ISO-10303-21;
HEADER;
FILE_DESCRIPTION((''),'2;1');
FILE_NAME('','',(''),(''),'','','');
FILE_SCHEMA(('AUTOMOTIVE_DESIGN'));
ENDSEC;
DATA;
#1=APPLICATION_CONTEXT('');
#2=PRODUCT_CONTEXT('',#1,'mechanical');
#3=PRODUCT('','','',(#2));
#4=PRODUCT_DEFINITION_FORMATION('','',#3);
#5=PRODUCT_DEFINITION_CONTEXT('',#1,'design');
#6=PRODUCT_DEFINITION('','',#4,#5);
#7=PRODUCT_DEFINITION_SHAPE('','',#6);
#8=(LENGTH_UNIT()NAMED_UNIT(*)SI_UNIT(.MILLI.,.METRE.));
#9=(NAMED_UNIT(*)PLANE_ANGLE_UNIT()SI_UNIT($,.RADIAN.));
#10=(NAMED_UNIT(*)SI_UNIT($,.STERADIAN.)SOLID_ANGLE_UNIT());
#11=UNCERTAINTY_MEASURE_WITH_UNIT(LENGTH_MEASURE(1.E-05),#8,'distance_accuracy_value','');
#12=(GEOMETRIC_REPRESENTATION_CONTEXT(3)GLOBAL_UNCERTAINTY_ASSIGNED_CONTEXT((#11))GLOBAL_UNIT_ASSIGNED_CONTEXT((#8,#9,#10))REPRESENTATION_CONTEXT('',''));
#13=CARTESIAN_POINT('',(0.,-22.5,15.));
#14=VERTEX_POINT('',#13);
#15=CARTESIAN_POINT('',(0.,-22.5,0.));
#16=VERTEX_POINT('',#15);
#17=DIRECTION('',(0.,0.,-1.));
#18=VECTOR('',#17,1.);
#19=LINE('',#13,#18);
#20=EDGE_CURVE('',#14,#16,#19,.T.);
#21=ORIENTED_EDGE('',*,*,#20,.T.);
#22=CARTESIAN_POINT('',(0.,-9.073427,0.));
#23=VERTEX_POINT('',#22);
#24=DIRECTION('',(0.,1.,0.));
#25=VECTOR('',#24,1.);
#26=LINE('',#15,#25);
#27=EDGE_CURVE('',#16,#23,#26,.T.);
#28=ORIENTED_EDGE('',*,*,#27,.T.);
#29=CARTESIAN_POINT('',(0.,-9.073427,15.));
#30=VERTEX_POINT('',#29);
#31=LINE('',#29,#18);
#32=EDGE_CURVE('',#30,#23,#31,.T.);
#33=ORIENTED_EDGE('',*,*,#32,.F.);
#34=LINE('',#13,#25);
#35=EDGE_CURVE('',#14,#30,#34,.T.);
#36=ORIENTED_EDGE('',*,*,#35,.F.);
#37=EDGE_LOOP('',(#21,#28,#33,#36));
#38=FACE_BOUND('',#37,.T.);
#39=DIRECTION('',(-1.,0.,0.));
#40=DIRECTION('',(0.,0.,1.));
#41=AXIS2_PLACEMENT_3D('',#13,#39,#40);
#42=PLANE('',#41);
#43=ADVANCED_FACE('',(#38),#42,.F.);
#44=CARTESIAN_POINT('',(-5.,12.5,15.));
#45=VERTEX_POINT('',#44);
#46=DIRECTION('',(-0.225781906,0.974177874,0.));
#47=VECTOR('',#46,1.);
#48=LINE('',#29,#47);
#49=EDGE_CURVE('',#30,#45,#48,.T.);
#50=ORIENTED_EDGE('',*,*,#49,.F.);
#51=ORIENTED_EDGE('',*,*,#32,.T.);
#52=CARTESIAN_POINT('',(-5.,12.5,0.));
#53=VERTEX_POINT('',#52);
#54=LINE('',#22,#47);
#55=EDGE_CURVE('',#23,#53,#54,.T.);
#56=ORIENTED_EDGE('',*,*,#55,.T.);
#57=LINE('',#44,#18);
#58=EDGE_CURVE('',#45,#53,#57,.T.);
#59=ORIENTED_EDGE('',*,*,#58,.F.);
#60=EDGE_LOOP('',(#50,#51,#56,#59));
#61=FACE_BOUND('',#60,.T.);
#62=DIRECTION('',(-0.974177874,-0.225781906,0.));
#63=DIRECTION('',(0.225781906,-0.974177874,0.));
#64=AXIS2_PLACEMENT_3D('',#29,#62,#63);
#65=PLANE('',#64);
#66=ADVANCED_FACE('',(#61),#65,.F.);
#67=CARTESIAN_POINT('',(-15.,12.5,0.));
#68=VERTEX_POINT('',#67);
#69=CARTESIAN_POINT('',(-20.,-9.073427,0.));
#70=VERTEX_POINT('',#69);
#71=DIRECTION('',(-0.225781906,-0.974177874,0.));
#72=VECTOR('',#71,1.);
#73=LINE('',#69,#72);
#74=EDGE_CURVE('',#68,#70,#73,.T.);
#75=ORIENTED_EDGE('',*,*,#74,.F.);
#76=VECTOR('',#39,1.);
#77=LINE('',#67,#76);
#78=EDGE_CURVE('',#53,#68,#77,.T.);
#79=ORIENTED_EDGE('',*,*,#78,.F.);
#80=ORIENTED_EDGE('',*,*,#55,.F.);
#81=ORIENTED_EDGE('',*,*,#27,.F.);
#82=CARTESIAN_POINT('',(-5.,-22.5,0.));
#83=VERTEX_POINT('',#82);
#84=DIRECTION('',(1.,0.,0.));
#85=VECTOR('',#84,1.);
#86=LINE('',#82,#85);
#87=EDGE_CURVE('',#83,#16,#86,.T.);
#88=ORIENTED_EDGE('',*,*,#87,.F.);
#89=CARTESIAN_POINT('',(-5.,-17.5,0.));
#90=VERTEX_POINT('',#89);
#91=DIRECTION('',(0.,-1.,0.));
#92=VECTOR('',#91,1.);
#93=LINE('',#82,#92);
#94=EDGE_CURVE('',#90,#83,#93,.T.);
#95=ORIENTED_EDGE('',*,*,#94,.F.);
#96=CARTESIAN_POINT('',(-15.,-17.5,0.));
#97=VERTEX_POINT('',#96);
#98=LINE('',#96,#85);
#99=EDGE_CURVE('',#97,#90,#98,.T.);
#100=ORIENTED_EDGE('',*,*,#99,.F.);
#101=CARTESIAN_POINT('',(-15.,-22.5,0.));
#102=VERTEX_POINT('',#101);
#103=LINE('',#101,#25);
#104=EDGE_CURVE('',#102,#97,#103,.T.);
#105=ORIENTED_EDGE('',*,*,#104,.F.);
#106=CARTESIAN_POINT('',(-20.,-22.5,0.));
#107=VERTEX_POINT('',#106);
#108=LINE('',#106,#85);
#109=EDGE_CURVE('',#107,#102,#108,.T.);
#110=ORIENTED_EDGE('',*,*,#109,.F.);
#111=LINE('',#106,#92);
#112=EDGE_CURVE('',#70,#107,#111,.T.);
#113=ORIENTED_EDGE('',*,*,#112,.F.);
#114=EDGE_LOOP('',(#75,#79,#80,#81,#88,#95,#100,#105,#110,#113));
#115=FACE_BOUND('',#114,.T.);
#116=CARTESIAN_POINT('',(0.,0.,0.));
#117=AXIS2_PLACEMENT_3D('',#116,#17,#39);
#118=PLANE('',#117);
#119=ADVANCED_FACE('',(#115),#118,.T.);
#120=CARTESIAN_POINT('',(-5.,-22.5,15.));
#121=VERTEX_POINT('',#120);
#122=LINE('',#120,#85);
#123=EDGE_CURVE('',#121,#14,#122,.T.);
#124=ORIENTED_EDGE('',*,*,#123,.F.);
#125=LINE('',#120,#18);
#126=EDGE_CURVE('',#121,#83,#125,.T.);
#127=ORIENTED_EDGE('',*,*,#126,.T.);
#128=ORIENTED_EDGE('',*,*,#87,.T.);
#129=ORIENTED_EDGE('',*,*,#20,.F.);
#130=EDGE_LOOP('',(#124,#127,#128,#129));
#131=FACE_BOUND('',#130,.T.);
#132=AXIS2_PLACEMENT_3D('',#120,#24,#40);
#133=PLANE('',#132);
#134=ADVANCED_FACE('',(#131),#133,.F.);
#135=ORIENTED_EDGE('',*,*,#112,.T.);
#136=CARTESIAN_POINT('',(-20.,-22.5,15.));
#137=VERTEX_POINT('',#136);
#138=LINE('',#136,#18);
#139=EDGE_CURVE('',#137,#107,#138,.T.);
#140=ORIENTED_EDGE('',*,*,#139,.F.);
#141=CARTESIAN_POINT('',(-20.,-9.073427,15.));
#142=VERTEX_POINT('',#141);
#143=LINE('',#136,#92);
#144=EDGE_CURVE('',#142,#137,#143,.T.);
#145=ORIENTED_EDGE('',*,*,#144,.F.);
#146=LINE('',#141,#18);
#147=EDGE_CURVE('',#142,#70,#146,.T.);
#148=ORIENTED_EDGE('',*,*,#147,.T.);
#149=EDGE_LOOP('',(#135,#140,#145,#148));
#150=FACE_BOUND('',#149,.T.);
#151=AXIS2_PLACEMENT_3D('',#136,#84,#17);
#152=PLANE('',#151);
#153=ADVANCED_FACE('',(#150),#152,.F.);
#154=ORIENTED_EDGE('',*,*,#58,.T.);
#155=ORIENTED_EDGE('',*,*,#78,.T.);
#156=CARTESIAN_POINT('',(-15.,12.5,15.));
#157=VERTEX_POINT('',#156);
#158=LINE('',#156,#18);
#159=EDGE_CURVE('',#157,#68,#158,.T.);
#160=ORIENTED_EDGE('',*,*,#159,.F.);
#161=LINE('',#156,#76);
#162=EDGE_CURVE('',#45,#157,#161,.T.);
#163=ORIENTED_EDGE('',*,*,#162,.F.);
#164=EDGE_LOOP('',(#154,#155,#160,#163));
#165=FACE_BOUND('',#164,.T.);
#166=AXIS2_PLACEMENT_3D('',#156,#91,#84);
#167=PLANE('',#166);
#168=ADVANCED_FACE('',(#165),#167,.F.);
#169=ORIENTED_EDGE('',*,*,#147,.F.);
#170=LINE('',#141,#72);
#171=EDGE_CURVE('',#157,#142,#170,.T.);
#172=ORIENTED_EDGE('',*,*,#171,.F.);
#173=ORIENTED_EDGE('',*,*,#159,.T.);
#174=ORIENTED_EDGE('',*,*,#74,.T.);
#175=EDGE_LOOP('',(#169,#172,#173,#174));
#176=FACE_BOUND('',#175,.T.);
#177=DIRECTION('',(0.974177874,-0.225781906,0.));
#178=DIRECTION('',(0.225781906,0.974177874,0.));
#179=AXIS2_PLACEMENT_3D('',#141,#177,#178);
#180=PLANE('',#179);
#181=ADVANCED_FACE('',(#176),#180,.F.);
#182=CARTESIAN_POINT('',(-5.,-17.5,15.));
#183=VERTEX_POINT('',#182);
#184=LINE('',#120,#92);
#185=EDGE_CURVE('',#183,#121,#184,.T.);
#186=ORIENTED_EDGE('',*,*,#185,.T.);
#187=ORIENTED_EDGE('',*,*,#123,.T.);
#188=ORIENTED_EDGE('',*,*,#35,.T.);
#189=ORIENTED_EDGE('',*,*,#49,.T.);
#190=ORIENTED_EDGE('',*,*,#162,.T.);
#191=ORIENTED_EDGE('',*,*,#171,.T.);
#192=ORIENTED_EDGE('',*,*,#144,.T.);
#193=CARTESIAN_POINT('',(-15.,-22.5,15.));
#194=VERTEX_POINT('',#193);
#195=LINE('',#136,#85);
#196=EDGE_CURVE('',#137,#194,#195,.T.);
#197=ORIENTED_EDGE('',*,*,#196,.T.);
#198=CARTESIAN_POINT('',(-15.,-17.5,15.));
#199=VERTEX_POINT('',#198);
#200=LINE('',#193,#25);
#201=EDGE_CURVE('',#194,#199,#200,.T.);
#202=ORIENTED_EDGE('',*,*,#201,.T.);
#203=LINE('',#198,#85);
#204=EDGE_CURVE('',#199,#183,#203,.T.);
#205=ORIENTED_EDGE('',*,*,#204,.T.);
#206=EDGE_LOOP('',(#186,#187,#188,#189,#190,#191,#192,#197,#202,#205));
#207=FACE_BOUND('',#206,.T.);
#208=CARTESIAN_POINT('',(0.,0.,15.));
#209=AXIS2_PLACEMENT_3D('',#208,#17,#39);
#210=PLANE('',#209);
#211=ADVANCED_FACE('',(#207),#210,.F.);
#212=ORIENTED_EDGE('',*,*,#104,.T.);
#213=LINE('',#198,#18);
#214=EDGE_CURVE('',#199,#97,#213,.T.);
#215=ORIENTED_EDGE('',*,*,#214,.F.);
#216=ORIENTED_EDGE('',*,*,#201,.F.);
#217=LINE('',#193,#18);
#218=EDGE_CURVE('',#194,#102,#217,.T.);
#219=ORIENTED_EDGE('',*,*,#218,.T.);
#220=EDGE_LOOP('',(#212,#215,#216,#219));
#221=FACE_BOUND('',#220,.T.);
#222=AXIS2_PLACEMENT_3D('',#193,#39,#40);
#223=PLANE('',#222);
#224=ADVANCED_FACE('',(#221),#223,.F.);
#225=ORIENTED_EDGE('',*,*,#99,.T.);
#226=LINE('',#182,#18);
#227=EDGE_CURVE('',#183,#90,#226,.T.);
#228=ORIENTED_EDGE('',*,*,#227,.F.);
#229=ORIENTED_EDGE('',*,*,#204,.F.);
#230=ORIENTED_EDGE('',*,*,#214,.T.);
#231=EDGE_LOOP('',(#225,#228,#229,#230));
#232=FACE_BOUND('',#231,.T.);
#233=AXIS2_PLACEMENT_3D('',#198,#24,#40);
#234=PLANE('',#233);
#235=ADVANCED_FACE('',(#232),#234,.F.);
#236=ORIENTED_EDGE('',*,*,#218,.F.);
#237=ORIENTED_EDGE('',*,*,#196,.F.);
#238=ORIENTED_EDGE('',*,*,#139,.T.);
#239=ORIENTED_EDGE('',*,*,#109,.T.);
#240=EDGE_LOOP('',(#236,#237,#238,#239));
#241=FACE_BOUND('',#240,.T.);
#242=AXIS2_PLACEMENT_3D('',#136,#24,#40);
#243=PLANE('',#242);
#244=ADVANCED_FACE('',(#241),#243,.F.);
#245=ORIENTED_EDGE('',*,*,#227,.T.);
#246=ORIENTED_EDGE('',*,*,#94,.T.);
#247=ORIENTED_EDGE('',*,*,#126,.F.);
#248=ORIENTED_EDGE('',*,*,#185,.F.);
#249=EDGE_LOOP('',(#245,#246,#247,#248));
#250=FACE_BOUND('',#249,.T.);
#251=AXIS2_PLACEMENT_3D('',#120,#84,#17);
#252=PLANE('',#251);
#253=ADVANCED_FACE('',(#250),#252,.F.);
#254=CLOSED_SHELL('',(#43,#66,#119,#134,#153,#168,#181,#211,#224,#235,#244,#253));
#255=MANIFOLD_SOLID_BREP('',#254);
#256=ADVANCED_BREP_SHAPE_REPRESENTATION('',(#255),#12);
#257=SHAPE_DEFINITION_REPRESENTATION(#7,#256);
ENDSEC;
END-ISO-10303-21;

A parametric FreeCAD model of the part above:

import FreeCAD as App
import Part
import Sketcher
from FreeCAD import Vector

doc = App.newDocument("Part")
body = doc.addObject("PartDesign::Body", "Body")

# Sketch on XY plane
sketch1 = doc.addObject("Sketcher::SketchObject", "Sketch")
body.addObject(sketch1)
sketch1.AttachmentSupport = (doc.XY_Plane, [""])
sketch1.MapMode = "FlatFace"
sketch1.addGeometry([
    Part.LineSegment(Vector(-15, 12.5, 0), Vector(-20, -9.073427, 0)),  # 0
    Part.LineSegment(Vector(-20, -9.073427, 0), Vector(-20, -22.5, 0)),  # 1
    Part.LineSegment(Vector(-20, -22.5, 0), Vector(-15, -22.5, 0)),  # 2
    Part.LineSegment(Vector(-15, -22.5, 0), Vector(-15, -17.5, 0)),  # 3
    Part.LineSegment(Vector(-15, -17.5, 0), Vector(-5, -17.5, 0)),  # 4
    Part.LineSegment(Vector(-5, -17.5, 0), Vector(-5, -22.5, 0)),  # 5
    Part.LineSegment(Vector(-5, -22.5, 0), Vector(0, -22.5, 0)),  # 6
    Part.LineSegment(Vector(0, -22.5, 0), Vector(0, -9.073427, 0)),  # 7
    Part.LineSegment(Vector(0, -9.073427, 0), Vector(-5, 12.5, 0)),  # 8
    Part.LineSegment(Vector(-5, 12.5, 0), Vector(-15, 12.5, 0)),  # 9
], False)
sketch1.addConstraint([
    Sketcher.Constraint("Coincident", 0, 2, 1, 1),
    Sketcher.Constraint("Coincident", 1, 2, 2, 1),
    Sketcher.Constraint("Coincident", 2, 2, 3, 1),
    Sketcher.Constraint("Coincident", 3, 2, 4, 1),
    Sketcher.Constraint("Coincident", 4, 2, 5, 1),
    Sketcher.Constraint("Coincident", 5, 2, 6, 1),
    Sketcher.Constraint("Coincident", 6, 2, 7, 1),
    Sketcher.Constraint("Coincident", 7, 2, 8, 1),
    Sketcher.Constraint("Coincident", 8, 2, 9, 1),
    Sketcher.Constraint("Coincident", 9, 2, 0, 1),
    Sketcher.Constraint("Vertical", 1),
    Sketcher.Constraint("Horizontal", 2),
    Sketcher.Constraint("Vertical", 3),
    Sketcher.Constraint("Horizontal", 4),
    Sketcher.Constraint("Vertical", 5),
    Sketcher.Constraint("Horizontal", 6),
    Sketcher.Constraint("Vertical", 7),
    Sketcher.Constraint("Horizontal", 9),
    Sketcher.Constraint("PointOnObject", 6, 2, -2),
    Sketcher.Constraint("Horizontal", 2, 2, 5, 2),
    Sketcher.Constraint("Horizontal", 0, 2, 7, 2),
    Sketcher.Constraint("Vertical", 5, 2, 8, 2),
    Sketcher.Constraint("Vertical", 3, 2, 9, 2),
    Sketcher.Constraint("Equal", 2, 6),
    Sketcher.Constraint("Equal", 6, 3),
    Sketcher.Constraint("DistanceX", 2, 1, 2, 2, 5.0),
    Sketcher.Constraint("DistanceX", 4, 1, 4, 2, 10.0),
    Sketcher.Constraint("DistanceY", 4, 2, 8, 2, 30.0),
    Sketcher.Constraint("DistanceY", 1, 2, -1, 1, 22.5),
    Sketcher.Constraint("DistanceY", 1, 2, 1, 1, 13.426573),
])
pad1 = doc.addObject("PartDesign::Pad", "Pad")
body.addObject(pad1)
pad1.Profile = sketch1
pad1.Length = 15

doc.recompute()
